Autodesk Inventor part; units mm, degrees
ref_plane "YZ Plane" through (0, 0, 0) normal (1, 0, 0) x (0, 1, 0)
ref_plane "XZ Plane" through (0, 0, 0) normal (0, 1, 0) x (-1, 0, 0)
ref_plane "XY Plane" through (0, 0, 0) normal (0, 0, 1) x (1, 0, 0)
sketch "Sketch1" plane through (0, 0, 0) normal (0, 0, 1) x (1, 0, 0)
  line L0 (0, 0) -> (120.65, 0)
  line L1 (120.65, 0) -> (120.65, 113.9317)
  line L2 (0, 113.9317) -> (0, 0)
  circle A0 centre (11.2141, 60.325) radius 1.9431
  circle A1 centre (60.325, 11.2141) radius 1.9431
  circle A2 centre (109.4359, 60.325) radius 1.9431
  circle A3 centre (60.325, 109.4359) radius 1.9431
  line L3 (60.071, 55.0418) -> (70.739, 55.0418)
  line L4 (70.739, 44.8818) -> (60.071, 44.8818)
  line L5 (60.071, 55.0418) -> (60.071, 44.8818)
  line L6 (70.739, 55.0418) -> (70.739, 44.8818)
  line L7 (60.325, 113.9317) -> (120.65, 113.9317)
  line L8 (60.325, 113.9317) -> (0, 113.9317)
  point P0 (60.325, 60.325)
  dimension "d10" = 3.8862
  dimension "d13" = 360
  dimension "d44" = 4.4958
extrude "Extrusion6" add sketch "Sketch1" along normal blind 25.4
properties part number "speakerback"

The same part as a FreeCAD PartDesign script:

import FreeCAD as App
import Part
import Sketcher

V = App.Vector
Q = App.Units.Quantity


def add_polygon(sketch, points):
    """Adds a closed chain of lines whose ends are joined by coincident constraints."""
    first, n = sketch.GeometryCount, len(points)
    for a, b in zip(points, points[1:] + points[:1]):
        sketch.addGeometry(Part.LineSegment(App.Vector(*a, 0), App.Vector(*b, 0)), False)
    for i in range(n):
        sketch.addConstraint(Sketcher.Constraint("Coincident", first + i, 2, first + (i + 1) % n, 1))

doc = App.newDocument("Part")
body = doc.addObject("PartDesign::Body", "Body")

# Sketch on XY plane
sketch1 = doc.addObject("Sketcher::SketchObject", "Sketch")
body.addObject(sketch1)
sketch1.AttachmentSupport = (doc.XY_Plane, [""])
sketch1.MapMode = "FlatFace"
add_polygon(sketch1, [(0, 113.9317), (0, 0), (120.65, 0), (120.65, 113.9317)])  # lines 0-3
sketch1.addGeometry(Part.Circle(V(60.325, 11.2141, 0), V(0, 0, 1), 1.9431), False)  # 4
add_polygon(sketch1, [(60.071, 44.8818), (60.071, 55.0418), (70.739, 55.0418), (70.739, 44.8818)])  # lines 5-8
sketch1.addGeometry(Part.Circle(V(11.2141, 60.325, 0), V(0, 0, 1), 1.9431), False)  # 9
sketch1.addGeometry(Part.Circle(V(109.4359, 60.325, 0), V(0, 0, 1), 1.9431), False)  # 10
sketch1.addGeometry(Part.Circle(V(60.325, 109.4359, 0), V(0, 0, 1), 1.9431), False)  # 11
sketch1.addConstraint([
    Sketcher.Constraint("Vertical", 0),
    Sketcher.Constraint("Horizontal", 1),
    Sketcher.Constraint("Vertical", 2),
    Sketcher.Constraint("Horizontal", 3),
    Sketcher.Constraint("Vertical", 5),
    Sketcher.Constraint("Horizontal", 6),
    Sketcher.Constraint("Vertical", 7),
    Sketcher.Constraint("Horizontal", 8),
    Sketcher.Constraint("Coincident", 0, 2, -1, 1),
    Sketcher.Constraint("Equal", 4, 9),
    Sketcher.Constraint("Equal", 9, 10),
    Sketcher.Constraint("Equal", 10, 11),
    Sketcher.Constraint("Horizontal", 9, 3, 10, 3),
    Sketcher.Constraint("Vertical", 4, 3, 11, 3),
    Sketcher.Constraint("Diameter", 4, Q("0.153 in")),
    Sketcher.Constraint("DistanceY", 5, 1, 5, 2, Q("0.4 in")),
    Sketcher.Constraint("DistanceY", 11, 3, 2, 2, Q("0.177 in")),
    Sketcher.Constraint("DistanceX", 1, 1, 1, 2, Q("4.75 in")),
    Sketcher.Constraint("DistanceX", 6, 1, 6, 2, Q("0.42 in")),
    Sketcher.Constraint("DistanceX", 5, 2, 4, 3, Q("0.01 in")),
    Sketcher.Constraint("DistanceY", 0, 2, 0, 1, Q("4.4855 in")),
    Sketcher.Constraint("DistanceX", -1, 1, 4, 3, Q("2.375 in")),
    Sketcher.Constraint("DistanceY", -1, 1, 9, 3, Q("2.375 in")),
    Sketcher.Constraint("DistanceY", -1, 1, 5, 2, Q("2.167 in")),
    Sketcher.Constraint("DistanceX", 9, 3, 10, 3, Q("3.867 in")),
    Sketcher.Constraint("DistanceY", 4, 3, 11, 3, Q("3.867 in")),
    Sketcher.Constraint("DistanceX", -1, 1, 9, 3, Q("0.4415 in")),
])
pad1 = doc.addObject("PartDesign::Pad", "Pad")
body.addObject(pad1)
pad1.Profile = sketch1
pad1.Length = Q("1 in")

doc.recompute()
